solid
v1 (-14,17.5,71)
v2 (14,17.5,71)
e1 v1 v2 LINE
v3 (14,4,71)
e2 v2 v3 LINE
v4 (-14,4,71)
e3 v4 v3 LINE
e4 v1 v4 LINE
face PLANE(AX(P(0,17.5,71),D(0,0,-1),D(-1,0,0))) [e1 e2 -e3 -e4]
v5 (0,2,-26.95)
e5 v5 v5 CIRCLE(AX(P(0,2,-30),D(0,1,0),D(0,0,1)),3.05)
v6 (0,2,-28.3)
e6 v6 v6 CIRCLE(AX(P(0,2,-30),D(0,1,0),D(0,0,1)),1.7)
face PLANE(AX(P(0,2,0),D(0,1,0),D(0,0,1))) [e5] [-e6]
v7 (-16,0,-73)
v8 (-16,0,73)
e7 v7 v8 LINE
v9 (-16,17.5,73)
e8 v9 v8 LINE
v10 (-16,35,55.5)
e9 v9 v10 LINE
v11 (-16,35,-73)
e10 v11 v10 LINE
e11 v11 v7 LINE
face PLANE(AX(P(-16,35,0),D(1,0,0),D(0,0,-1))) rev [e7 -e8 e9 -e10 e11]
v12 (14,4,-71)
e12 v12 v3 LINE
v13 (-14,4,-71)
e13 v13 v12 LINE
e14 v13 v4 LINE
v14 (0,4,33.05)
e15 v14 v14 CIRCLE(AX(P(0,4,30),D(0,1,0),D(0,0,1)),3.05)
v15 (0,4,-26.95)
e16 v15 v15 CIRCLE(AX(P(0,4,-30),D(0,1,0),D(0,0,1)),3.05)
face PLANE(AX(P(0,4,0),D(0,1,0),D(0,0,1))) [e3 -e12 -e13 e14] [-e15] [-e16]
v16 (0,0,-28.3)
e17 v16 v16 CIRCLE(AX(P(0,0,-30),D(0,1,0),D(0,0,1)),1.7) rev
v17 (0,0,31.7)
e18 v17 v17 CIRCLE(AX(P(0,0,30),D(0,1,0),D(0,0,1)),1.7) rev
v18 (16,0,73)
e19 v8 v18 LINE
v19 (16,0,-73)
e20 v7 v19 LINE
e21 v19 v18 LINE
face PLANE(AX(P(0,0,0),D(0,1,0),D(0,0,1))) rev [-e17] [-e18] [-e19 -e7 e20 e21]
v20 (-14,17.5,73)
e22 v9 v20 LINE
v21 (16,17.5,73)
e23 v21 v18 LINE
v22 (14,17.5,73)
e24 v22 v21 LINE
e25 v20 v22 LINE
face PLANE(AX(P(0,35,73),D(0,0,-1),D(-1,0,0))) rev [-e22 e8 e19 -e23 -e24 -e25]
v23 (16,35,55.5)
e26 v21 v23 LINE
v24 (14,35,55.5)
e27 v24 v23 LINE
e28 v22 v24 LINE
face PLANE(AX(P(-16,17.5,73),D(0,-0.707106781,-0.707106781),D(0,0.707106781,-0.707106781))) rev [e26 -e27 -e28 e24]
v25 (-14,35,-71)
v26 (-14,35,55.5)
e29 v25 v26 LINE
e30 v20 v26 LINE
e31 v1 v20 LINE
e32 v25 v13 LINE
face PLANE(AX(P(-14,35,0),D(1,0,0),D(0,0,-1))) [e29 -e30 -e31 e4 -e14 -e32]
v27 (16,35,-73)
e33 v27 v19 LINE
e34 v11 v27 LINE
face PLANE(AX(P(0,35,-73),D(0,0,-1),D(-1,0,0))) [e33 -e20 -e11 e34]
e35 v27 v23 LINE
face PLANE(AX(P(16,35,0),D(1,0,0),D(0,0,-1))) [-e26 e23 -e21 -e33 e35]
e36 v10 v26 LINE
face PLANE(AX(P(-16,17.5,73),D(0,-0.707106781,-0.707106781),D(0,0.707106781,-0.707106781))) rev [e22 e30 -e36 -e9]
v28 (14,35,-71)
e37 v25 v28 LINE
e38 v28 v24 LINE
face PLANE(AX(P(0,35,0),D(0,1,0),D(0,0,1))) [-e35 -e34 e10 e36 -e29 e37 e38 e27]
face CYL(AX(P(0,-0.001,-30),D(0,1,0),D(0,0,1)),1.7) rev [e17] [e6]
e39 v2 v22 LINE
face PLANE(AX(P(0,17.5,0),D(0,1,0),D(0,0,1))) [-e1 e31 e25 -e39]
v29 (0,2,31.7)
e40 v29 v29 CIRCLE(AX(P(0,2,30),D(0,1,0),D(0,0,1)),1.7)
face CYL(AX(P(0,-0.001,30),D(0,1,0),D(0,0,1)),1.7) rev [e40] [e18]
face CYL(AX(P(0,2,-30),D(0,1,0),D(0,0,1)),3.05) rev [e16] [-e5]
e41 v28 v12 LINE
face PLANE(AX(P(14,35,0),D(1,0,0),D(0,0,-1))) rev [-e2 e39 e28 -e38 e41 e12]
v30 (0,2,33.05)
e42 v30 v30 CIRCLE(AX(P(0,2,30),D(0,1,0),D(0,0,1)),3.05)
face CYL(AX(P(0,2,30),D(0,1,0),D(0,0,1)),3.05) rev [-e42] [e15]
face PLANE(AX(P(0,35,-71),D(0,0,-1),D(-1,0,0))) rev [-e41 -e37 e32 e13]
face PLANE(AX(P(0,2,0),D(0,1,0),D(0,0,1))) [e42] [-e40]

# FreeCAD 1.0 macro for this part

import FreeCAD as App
import Part
import Sketcher
Q = App.Units.Quantity


def add_polygon(sketch, points):
    """Adds a closed chain of lines whose ends are joined by coincident constraints."""
    first, n = sketch.GeometryCount, len(points)
    for a, b in zip(points, points[1:] + points[:1]):
        sketch.addGeometry(Part.LineSegment(App.Vector(*a, 0), App.Vector(*b, 0)), False)
    for i in range(n):
        sketch.addConstraint(Sketcher.Constraint("Coincident", first + i, 2, first + (i + 1) % n, 1))

doc = App.newDocument("Part")
params = doc.addObject("Spreadsheet::Sheet", "Params")
for row, (alias, value) in enumerate([
    ("sketch1_width", "28 mm"),
    ("sketch1_height", "142 mm"),
    ("pad1_length", "4 mm"),
    ("sketch2_width", "28 mm"),
    ("sketch2_width2", "2 mm"),
    ("sketch2_height", "144 mm"),
    ("sketch2_height2", "146 mm"),
    ("pad2_length", "35 mm"),
    ("sketch3_width", "28 mm"),
    ("sketch3_height", "2 mm"),
    ("pad3_length", "17.5 mm"),
    ("sketch4_diameter", "3.4 mm"),
    ("sketch5_diameter", "3.4 mm"),
    ("sketch6_diameter", "6.1 mm"),
    ("pocket3_length", "2 mm"),
    ("sketch7_width", "17.5 mm"),
], start=1):
    params.set(f"A{row}", alias)
    params.set(f"B{row}", "=" + value)
    params.setAlias(f"B{row}", alias)

body = doc.addObject("PartDesign::Body", "Body")

# Sketch on XZ plane
sketch1 = body.newObject("Sketcher::SketchObject", "Sketch")
sketch1.AttachmentSupport = (doc.getObject("XZ_Plane"), [""])
sketch1.MapMode = "FlatFace"
add_polygon(sketch1, [(-14, -71), (-14, 71), (14, 71), (14, -71)])  # lines 0-3
sketch1.addConstraint([
    Sketcher.Constraint("Vertical", 0),
    Sketcher.Constraint("Horizontal", 1),
    Sketcher.Constraint("Vertical", 2),
    Sketcher.Constraint("Horizontal", 3),
    Sketcher.Constraint("Symmetric", 0, 2, 2, 2, -1, 1),
    Sketcher.Constraint("DistanceX", 1, 1, 1, 2, Q("28 mm")),
    Sketcher.Constraint("DistanceY", 0, 1, 0, 2, Q("142 mm")),
])
sketch1.setExpression("Constraints[9]", "Params.sketch1_width")
sketch1.setExpression("Constraints[10]", "Params.sketch1_height")
pad1 = body.newObject("PartDesign::Pad", "Pad")
pad1.Profile = sketch1
pad1.setExpression("Length", "Params.pad1_length")
pad1.Reversed = True

# Sketch on XZ plane
sketch2 = body.newObject("Sketcher::SketchObject", "Sketch001")
sketch2.AttachmentSupport = (doc.getObject("XZ_Plane"), [""])
sketch2.MapMode = "FlatFace"
add_polygon(sketch2, [(-14, 73), (-14, -71), (14, -71), (14, 73), (16, 73), (16, -73), (-16, -73), (-16, 73)])  # lines 0-7
sketch2.addConstraint([
    Sketcher.Constraint("Vertical", 0),
    Sketcher.Constraint("Horizontal", 1),
    Sketcher.Constraint("Vertical", 2),
    Sketcher.Constraint("Horizontal", 3),
    Sketcher.Constraint("Vertical", 4),
    Sketcher.Constraint("Horizontal", 5),
    Sketcher.Constraint("Vertical", 6),
    Sketcher.Constraint("Horizontal", 7),
    Sketcher.Constraint("Symmetric", 3, 2, 5, 2, -1, 1),
    Sketcher.Constraint("Symmetric", 2, 2, 7, 2, -2),
    Sketcher.Constraint("DistanceX", 1, 1, 1, 2, Q("28 mm")),
    Sketcher.Constraint("DistanceX", 3, 1, 3, 2, Q("2 mm")),
    Sketcher.Constraint("DistanceY", 0, 2, 0, 1, Q("144 mm")),
    Sketcher.Constraint("DistanceY", 4, 2, 4, 1, Q("146 mm")),
])
sketch2.setExpression("Constraints[18]", "Params.sketch2_width")
sketch2.setExpression("Constraints[19]", "Params.sketch2_width2")
sketch2.setExpression("Constraints[20]", "Params.sketch2_height")
sketch2.setExpression("Constraints[21]", "Params.sketch2_height2")
pad2 = body.newObject("PartDesign::Pad", "Pad001")
pad2.Profile = sketch2
pad2.setExpression("Length", "Params.pad2_length")
pad2.Reversed = True

# Sketch on XZ plane
sketch3 = body.newObject("Sketcher::SketchObject", "Sketch002")
sketch3.AttachmentSupport = (doc.getObject("XZ_Plane"), [""])
sketch3.MapMode = "FlatFace"
add_polygon(sketch3, [(-14, 71), (-14, 73), (14, 73), (14, 71)])  # lines 0-3
sketch3.addConstraint([
    Sketcher.Constraint("Vertical", 0),
    Sketcher.Constraint("Horizontal", 1),
    Sketcher.Constraint("Vertical", 2),
    Sketcher.Constraint("Horizontal", 3),
    Sketcher.Constraint("DistanceX", 1, 1, 1, 2, Q("28 mm")),
    Sketcher.Constraint("DistanceY", 0, 1, 0, 2, Q("2 mm")),
    Sketcher.Constraint("DistanceX", 0, 2, -1, 1, Q("14 mm")),
    Sketcher.Constraint("DistanceY", -1, 1, 0, 2, Q("73 mm")),
])
sketch3.setExpression("Constraints[8]", "Params.sketch3_width")
sketch3.setExpression("Constraints[9]", "Params.sketch3_height")
pad3 = body.newObject("PartDesign::Pad", "Pad002")
pad3.Profile = sketch3
pad3.setExpression("Length", "Params.pad3_length")
pad3.Reversed = True

# Sketch on XZ plane
sketch4 = body.newObject("Sketcher::SketchObject", "Sketch003")
sketch4.AttachmentSupport = (doc.getObject("XZ_Plane"), [""])
sketch4.MapMode = "FlatFace"
sketch4.AttachmentOffset = App.Placement(App.Vector(0, 0, -4), App.Rotation())
sketch4.addGeometry(Part.Circle(App.Vector(0, -30, 0), App.Vector(0, 0, 1), 1.7), False)
sketch4.addConstraint([
    Sketcher.Constraint("PointOnObject", 0, 3, -2),
    Sketcher.Constraint("Diameter", 0, Q("3.4 mm")),
    Sketcher.Constraint("DistanceY", 0, 3, -1, 1, Q("30 mm")),
])
sketch4.setExpression("Constraints[1]", "Params.sketch4_diameter")
pocket1 = body.newObject("PartDesign::Pocket", "Pocket")
pocket1.Profile = sketch4
pocket1.Type = "UpToFirst"
pocket1.Reversed = True

# Sketch on XZ plane
sketch5 = body.newObject("Sketcher::SketchObject", "Sketch004")
sketch5.AttachmentSupport = (doc.getObject("XZ_Plane"), [""])
sketch5.MapMode = "FlatFace"
sketch5.AttachmentOffset = App.Placement(App.Vector(0, 0, -4), App.Rotation())
sketch5.addGeometry(Part.Circle(App.Vector(0, 30, 0), App.Vector(0, 0, 1), 1.7), False)
sketch5.addConstraint([
    Sketcher.Constraint("PointOnObject", 0, 3, -2),
    Sketcher.Constraint("Diameter", 0, Q("3.4 mm")),
    Sketcher.Constraint("DistanceY", -1, 1, 0, 3, Q("30 mm")),
])
sketch5.setExpression("Constraints[1]", "Params.sketch5_diameter")
pocket2 = body.newObject("PartDesign::Pocket", "Pocket001")
pocket2.Profile = sketch5
pocket2.Type = "UpToFirst"
pocket2.Reversed = True

# Sketch on XZ plane
sketch6 = body.newObject("Sketcher::SketchObject", "Sketch005")
sketch6.AttachmentSupport = (doc.getObject("XZ_Plane"), [""])
sketch6.MapMode = "FlatFace"
sketch6.AttachmentOffset = App.Placement(App.Vector(0, 0, -4), App.Rotation())
sketch6.addGeometry([
    Part.Circle(App.Vector(0, -30, 0), App.Vector(0, 0, 1), 3.05),
    Part.Circle(App.Vector(0, 30, 0), App.Vector(0, 0, 1), 3.05),
], False)
sketch6.addConstraint([
    Sketcher.Constraint("Equal", 0, 1),
    Sketcher.Constraint("Symmetric", 0, 3, 1, 3, -1, 1),
    Sketcher.Constraint("PointOnObject", 0, 3, -2),
    Sketcher.Constraint("Diameter", 0, Q("6.1 mm")),
    Sketcher.Constraint("DistanceY", 0, 3, -1, 1, Q("30 mm")),
])
sketch6.setExpression("Constraints[3]", "Params.sketch6_diameter")
pocket3 = body.newObject("PartDesign::Pocket", "Pocket002")
pocket3.Profile = sketch6
pocket3.setExpression("Length", "Params.pocket3_length")
pocket3.Reversed = True

# Sketch on YZ plane
sketch7 = body.newObject("Sketcher::SketchObject", "Sketch006")
sketch7.AttachmentSupport = (doc.getObject("YZ_Plane"), [""])
sketch7.MapMode = "FlatFace"
sketch7.AttachmentOffset = App.Placement(App.Vector(0, 0, 16), App.Rotation())
add_polygon(sketch7, [(17.5, 73), (35, 55.5), (35, 73)])  # lines 0-2
sketch7.addConstraint([
    Sketcher.Constraint("Vertical", 1),
    Sketcher.Constraint("Horizontal", 2),
    Sketcher.Constraint("Equal", 2, 1),
    Sketcher.Constraint("DistanceX", 2, 2, 2, 1, Q("17.5 mm")),
    Sketcher.Constraint("DistanceX", -1, 1, 0, 2, Q("35 mm")),
    Sketcher.Constraint("DistanceY", -1, 1, 1, 2, Q("73 mm")),
])
sketch7.setExpression("Constraints[6]", "Params.sketch7_width")
pocket4 = body.newObject("PartDesign::Pocket", "Pocket003")
pocket4.Profile = sketch7
pocket4.Type = "ThroughAll"

doc.recompute()
